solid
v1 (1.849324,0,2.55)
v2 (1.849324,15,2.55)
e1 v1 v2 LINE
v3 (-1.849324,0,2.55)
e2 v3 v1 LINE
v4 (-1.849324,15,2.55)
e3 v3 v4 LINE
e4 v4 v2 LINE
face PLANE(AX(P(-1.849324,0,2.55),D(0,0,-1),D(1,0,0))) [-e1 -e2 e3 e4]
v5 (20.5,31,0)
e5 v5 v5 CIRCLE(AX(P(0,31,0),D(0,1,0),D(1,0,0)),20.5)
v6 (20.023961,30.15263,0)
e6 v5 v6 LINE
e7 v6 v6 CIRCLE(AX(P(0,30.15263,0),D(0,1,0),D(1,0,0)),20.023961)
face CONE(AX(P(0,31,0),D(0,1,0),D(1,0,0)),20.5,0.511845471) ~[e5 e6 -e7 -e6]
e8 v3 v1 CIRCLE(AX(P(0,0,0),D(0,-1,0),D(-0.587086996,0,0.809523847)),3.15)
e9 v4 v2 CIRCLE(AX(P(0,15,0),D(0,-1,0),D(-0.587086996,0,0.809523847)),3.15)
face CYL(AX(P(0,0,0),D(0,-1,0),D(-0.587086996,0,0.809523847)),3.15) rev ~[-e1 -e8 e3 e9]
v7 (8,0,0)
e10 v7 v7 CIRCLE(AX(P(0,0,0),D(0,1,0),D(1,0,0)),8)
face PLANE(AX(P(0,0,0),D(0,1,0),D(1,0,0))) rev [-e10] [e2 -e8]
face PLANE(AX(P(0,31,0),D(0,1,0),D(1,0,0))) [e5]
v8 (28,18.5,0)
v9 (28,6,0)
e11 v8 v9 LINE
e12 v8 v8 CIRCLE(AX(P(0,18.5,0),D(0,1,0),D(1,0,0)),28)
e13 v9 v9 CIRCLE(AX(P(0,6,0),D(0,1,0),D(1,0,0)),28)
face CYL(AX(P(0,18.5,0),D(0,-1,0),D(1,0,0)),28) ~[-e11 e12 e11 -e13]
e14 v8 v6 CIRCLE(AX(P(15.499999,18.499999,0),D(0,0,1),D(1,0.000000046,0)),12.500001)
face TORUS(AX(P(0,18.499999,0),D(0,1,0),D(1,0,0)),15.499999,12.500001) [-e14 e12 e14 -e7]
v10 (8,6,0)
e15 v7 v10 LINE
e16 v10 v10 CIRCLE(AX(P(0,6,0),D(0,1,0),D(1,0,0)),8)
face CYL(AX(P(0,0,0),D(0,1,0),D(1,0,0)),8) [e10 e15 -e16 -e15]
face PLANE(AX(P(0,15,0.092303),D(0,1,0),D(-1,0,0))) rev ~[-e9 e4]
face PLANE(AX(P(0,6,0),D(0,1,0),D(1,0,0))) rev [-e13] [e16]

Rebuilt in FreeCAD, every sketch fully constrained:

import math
import FreeCAD as App
import Part
import Sketcher

V = App.Vector
Q = App.Units.Quantity

doc = App.newDocument("Part")
body = doc.addObject("PartDesign::Body", "Body")

sketch1 = body.newObject("Sketcher::SketchObject", "Sketch")
sketch1.AttachmentSupport = (doc.getObject("XY_Plane"), [""])
sketch1.MapMode = "FlatFace"
sketch1.addGeometry([
    Part.LineSegment(V(0, 31, 0), V(0, 0, 0)),
    Part.LineSegment(V(0, 0, 0), V(8, 0, 0)),
    Part.LineSegment(V(8, 0, 0), V(8, 6, 0)),
    Part.LineSegment(V(8, 6, 0), V(28, 6, 0)),
    Part.LineSegment(V(28, 6, 0), V(28, 18.5, 0)),
    Part.ArcOfCircle(Part.Circle(V(15.499999, 18.499999, 0), V(0, 0, 1), 12.500001), math.radians(0.000003), math.radians(68.782031)),
    Part.LineSegment(V(20.023961, 30.15263, 0), V(20.5, 31, 0)),
    Part.LineSegment(V(20.5, 31, 0), V(0, 31, 0)),
], False)
sketch1.addConstraint([
    Sketcher.Constraint("Coincident", 0, 2, 1, 1),
    Sketcher.Constraint("Coincident", 1, 2, 2, 1),
    Sketcher.Constraint("Coincident", 2, 2, 3, 1),
    Sketcher.Constraint("Coincident", 3, 2, 4, 1),
    Sketcher.Constraint("Tangent", 4, 2, 5, 1),
    Sketcher.Constraint("Coincident", 5, 2, 6, 1),
    Sketcher.Constraint("Coincident", 6, 2, 7, 1),
    Sketcher.Constraint("Coincident", 7, 2, 0, 1),
    Sketcher.Constraint("Vertical", 0),
    Sketcher.Constraint("Horizontal", 1),
    Sketcher.Constraint("Vertical", 2),
    Sketcher.Constraint("Horizontal", 3),
    Sketcher.Constraint("Vertical", 4),
    Sketcher.Constraint("Horizontal", 7),
    Sketcher.Constraint("Coincident", 0, 2, -1, 1),
    Sketcher.Constraint("Radius", 5, Q("12.500001 mm")),
    Sketcher.Constraint("DistanceX", 1, 1, 1, 2, Q("8 mm")),
    Sketcher.Constraint("DistanceX", 3, 1, 3, 2, Q("20 mm")),
    Sketcher.Constraint("DistanceY", 0, 2, 0, 1, Q("31 mm")),
    Sketcher.Constraint("DistanceY", 2, 1, 2, 2, Q("6 mm")),
    Sketcher.Constraint("DistanceX", 7, 2, 7, 1, Q("20.5 mm")),
    Sketcher.Constraint("DistanceY", 4, 1, 4, 2, Q("12.5 mm")),
    Sketcher.Constraint("Distance", 6, Q("0.971931 mm")),
])
revolution = body.newObject("PartDesign::Revolution", "Revolution")
revolution.Profile = sketch1
revolution.ReferenceAxis = (sketch1, ["V_Axis"])
revolution.Angle = 360

sketch2 = body.newObject("Sketcher::SketchObject", "Sketch001")
sketch2.AttachmentSupport = (doc.getObject("XZ_Plane"), [""])
sketch2.MapMode = "FlatFace"
sketch2.addGeometry([
    Part.LineSegment(V(1.849324, 2.55, 0), V(-1.849324, 2.55, 0)),
    Part.ArcOfCircle(Part.Circle(V(0, 0, 0), V(0, 0, 1), 3.15), math.radians(125.950564), math.radians(414.049436)),
], False)
sketch2.addConstraint([
    Sketcher.Constraint("Coincident", 0, 1, 1, 2),
    Sketcher.Constraint("Coincident", 1, 1, 0, 2),
    Sketcher.Constraint("Horizontal", 0),
    Sketcher.Constraint("Coincident", 1, 3, -1, 1),
    Sketcher.Constraint("Radius", 1, Q("3.15 mm")),
    Sketcher.Constraint("DistanceY", -1, 1, 0, 1, Q("2.55 mm")),
])
pocket1 = body.newObject("PartDesign::Pocket", "Pocket")
pocket1.Profile = sketch2
pocket1.Length = 15

doc.recompute()
